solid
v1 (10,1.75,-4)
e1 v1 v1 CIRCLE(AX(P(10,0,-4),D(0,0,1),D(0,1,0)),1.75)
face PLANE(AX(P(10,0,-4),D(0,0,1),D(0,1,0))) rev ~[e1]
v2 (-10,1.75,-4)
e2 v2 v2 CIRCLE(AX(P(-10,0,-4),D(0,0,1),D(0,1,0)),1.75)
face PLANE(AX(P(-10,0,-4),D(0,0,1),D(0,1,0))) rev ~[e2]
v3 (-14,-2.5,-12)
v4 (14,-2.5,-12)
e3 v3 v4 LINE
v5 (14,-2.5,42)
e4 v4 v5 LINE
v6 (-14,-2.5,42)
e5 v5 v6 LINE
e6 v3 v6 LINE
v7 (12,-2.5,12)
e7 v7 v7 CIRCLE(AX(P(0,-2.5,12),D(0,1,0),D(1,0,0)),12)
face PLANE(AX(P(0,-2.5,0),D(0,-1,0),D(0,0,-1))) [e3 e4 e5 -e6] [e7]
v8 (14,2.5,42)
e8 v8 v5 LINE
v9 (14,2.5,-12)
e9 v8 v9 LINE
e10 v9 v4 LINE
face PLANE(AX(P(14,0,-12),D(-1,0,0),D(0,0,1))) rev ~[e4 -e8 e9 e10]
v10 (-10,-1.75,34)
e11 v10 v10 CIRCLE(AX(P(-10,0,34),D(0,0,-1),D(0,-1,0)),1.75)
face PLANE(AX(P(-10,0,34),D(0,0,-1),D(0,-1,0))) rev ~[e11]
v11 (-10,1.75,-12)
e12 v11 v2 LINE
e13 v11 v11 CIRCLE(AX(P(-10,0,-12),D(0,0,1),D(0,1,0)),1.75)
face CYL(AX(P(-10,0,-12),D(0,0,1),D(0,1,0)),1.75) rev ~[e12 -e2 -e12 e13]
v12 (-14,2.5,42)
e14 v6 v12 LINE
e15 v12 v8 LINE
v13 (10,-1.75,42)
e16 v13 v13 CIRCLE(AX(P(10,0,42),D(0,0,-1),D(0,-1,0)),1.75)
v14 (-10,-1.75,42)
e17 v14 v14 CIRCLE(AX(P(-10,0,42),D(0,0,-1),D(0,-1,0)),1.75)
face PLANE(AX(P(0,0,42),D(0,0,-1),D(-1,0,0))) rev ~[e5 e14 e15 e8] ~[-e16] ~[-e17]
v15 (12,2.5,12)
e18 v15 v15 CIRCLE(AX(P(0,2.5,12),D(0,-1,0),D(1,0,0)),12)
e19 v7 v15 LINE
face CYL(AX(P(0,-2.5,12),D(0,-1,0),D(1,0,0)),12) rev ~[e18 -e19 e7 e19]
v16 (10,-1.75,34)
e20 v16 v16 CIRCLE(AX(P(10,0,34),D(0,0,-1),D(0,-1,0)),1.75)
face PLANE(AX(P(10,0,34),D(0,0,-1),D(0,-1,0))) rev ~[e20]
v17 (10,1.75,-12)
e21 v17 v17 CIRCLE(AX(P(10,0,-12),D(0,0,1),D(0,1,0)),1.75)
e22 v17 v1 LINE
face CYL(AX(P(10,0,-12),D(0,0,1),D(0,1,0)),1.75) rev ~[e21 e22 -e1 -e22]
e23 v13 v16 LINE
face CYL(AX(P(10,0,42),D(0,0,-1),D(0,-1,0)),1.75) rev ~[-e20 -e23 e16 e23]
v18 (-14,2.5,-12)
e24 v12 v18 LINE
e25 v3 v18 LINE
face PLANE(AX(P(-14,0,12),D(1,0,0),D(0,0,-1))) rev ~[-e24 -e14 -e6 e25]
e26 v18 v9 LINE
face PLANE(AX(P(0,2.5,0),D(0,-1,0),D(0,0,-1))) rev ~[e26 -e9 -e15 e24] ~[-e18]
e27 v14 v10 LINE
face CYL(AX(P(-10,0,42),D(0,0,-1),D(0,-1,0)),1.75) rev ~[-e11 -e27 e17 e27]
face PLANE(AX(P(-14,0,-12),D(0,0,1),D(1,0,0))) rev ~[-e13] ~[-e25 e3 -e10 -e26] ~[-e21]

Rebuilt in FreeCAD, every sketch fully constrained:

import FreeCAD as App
import Part
import Sketcher
Q = App.Units.Quantity


def add_polygon(sketch, points):
    """Adds a closed chain of lines whose ends are joined by coincident constraints."""
    first, n = sketch.GeometryCount, len(points)
    for a, b in zip(points, points[1:] + points[:1]):
        sketch.addGeometry(Part.LineSegment(App.Vector(*a, 0), App.Vector(*b, 0)), False)
    for i in range(n):
        sketch.addConstraint(Sketcher.Constraint("Coincident", first + i, 2, first + (i + 1) % n, 1))

doc = App.newDocument("Part")
body = doc.addObject("PartDesign::Body", "Body")

# Sketch on XZ plane
sketch1 = doc.addObject("Sketcher::SketchObject", "Sketch")
body.addObject(sketch1)
sketch1.AttachmentSupport = (doc.XZ_Plane, [""])
sketch1.MapMode = "FlatFace"
add_polygon(sketch1, [(-14, 12), (-14, -12), (14, -12), (14, 12)])  # lines 0-3
sketch1.addConstraint([
    Sketcher.Constraint("Vertical", 0),
    Sketcher.Constraint("Horizontal", 1),
    Sketcher.Constraint("Vertical", 2),
    Sketcher.Constraint("Horizontal", 3),
    Sketcher.Constraint("Symmetric", 0, 2, 2, 2, -1, 1),
    Sketcher.Constraint("DistanceX", 0, 2, -1, 1, Q("14 mm")),
    Sketcher.Constraint("DistanceY", 0, 2, 0, 1, Q("24 mm")),
])
pad1 = doc.addObject("PartDesign::Pad", "Pad")
body.addObject(pad1)
pad1.Profile = sketch1
pad1.Length = 5
pad1.Midplane = True

# Sketch on XZ plane
sketch2 = doc.addObject("Sketcher::SketchObject", "Sketch001")
body.addObject(sketch2)
sketch2.AttachmentSupport = (doc.XZ_Plane, [""])
sketch2.MapMode = "FlatFace"
sketch2.AttachmentOffset = App.Placement(App.Vector(0, 0, 2.5), App.Rotation())
sketch2.addGeometry(Part.Circle(App.Vector(0, 12, 0), App.Vector(0, 0, 1), 12), False)
sketch2.addConstraint([
    Sketcher.Constraint("PointOnObject", 0, 3, -2),
    Sketcher.Constraint("Diameter", 0, Q("24 mm")),
    Sketcher.Constraint("DistanceY", -1, 1, 0, 3, Q("12 mm")),
])
pocket1 = doc.addObject("PartDesign::Pocket", "Pocket")
body.addObject(pocket1)
pocket1.Profile = sketch2
pocket1.Length = 221

# Sketch on XY plane
sketch3 = doc.addObject("Sketcher::SketchObject", "Sketch002")
body.addObject(sketch3)
sketch3.AttachmentSupport = (doc.XY_Plane, [""])
sketch3.MapMode = "FlatFace"
sketch3.AttachmentOffset = App.Placement(App.Vector(0, 0, -12), App.Rotation())
sketch3.addGeometry(Part.Circle(App.Vector(-10, 0, 0), App.Vector(0, 0, 1), 1.8), False)
sketch3.addConstraint([
    Sketcher.Constraint("PointOnObject", 0, 3, -1),
    Sketcher.Constraint("Diameter", 0, Q("3.5 mm")),
    Sketcher.Constraint("DistanceX", 0, 3, -1, 1, Q("10 mm")),
])
doc.recompute()
hole = doc.addObject("PartDesign::Hole", "Hole")
body.addObject(hole)
hole.Profile = sketch3
hole.ThreadType = "None"
hole.Diameter = 3.5
hole.DepthType = "Dimension"
hole.Depth = 8
hole.DrillPoint = "Flat"
hole.Reversed = True

# Sketch on XY plane
sketch4 = doc.addObject("Sketcher::SketchObject", "Sketch003")
body.addObject(sketch4)
sketch4.AttachmentSupport = (doc.XY_Plane, [""])
sketch4.MapMode = "FlatFace"
sketch4.AttachmentOffset = App.Placement(App.Vector(0, 0, -12), App.Rotation())
sketch4.addGeometry(Part.Circle(App.Vector(10, 0, 0), App.Vector(0, 0, 1), 1.8), False)
sketch4.addConstraint([
    Sketcher.Constraint("PointOnObject", 0, 3, -1),
    Sketcher.Constraint("Diameter", 0, Q("3.5 mm")),
    Sketcher.Constraint("DistanceX", -1, 1, 0, 3, Q("10 mm")),
])
doc.recompute()
hole2 = doc.addObject("PartDesign::Hole", "Hole001")
body.addObject(hole2)
hole2.Profile = sketch4
hole2.ThreadType = "None"
hole2.Diameter = 3.5
hole2.DepthType = "Dimension"
hole2.Depth = 8
hole2.DrillPoint = "Flat"
hole2.Reversed = True
doc.recompute()

datumplane = doc.addObject("PartDesign::Plane", "DatumPlane")
body.addObject(datumplane)
datumplane.AttachmentSupport = (doc.XY_Plane, [""])
datumplane.MapMode = "FlatFace"
datumplane.AttachmentOffset = App.Placement(App.Vector(0, 0, 12), App.Rotation())
mirrored = doc.addObject("PartDesign::Mirrored", "Mirrored")
body.addObject(mirrored)
mirrored.Originals = [pad1, pocket1]
mirrored.MirrorPlane = (datumplane, [""])
body.Tip = mirrored

# Sketch on XY plane
sketch5 = doc.addObject("Sketcher::SketchObject", "Sketch004")
body.addObject(sketch5)
sketch5.AttachmentSupport = (doc.XY_Plane, [""])
sketch5.MapMode = "FlatFace"
sketch5.AttachmentOffset = App.Placement(App.Vector(0, 0, 36), App.Rotation())
add_polygon(sketch5, [(14, 2), (-14, 2), (-14, -2), (14, -2)])  # lines 0-3
sketch5.addConstraint([
    Sketcher.Constraint("Horizontal", 0),
    Sketcher.Constraint("Vertical", 1),
    Sketcher.Constraint("Horizontal", 2),
    Sketcher.Constraint("Vertical", 3),
    Sketcher.Constraint("Symmetric", 0, 2, 2, 2, -1, 1),
    Sketcher.Constraint("DistanceX", 0, 2, 0, 1, Q("28 mm")),
    Sketcher.Constraint("DistanceY", 1, 2, 1, 1, Q("5 mm")),
])
pad2 = doc.addObject("PartDesign::Pad", "Pad001")
body.addObject(pad2)
pad2.Profile = sketch5
pad2.Length = 6

# Sketch on XY plane
sketch6 = doc.addObject("Sketcher::SketchObject", "Sketch005")
body.addObject(sketch6)
sketch6.AttachmentSupport = (doc.XY_Plane, [""])
sketch6.MapMode = "FlatFace"
sketch6.AttachmentOffset = App.Placement(App.Vector(0, 0, 42), App.Rotation())
sketch6.addGeometry(Part.Circle(App.Vector(-10, 0, 0), App.Vector(0, 0, 1), 1.8), False)
sketch6.addConstraint([
    Sketcher.Constraint("PointOnObject", 0, 3, -1),
    Sketcher.Constraint("Diameter", 0, Q("3.5 mm")),
    Sketcher.Constraint("DistanceX", 0, 3, -1, 1, Q("10 mm")),
])
doc.recompute()
hole3 = doc.addObject("PartDesign::Hole", "Hole002")
body.addObject(hole3)
hole3.Profile = sketch6
hole3.ThreadType = "None"
hole3.Diameter = 3.5
hole3.DepthType = "Dimension"
hole3.Depth = 8
hole3.DrillPoint = "Flat"

# Sketch on XY plane
sketch7 = doc.addObject("Sketcher::SketchObject", "Sketch006")
body.addObject(sketch7)
sketch7.AttachmentSupport = (doc.XY_Plane, [""])
sketch7.MapMode = "FlatFace"
sketch7.AttachmentOffset = App.Placement(App.Vector(0, 0, 42), App.Rotation())
sketch7.addGeometry(Part.Circle(App.Vector(10, 0, 0), App.Vector(0, 0, 1), 1.8), False)
sketch7.addConstraint([
    Sketcher.Constraint("PointOnObject", 0, 3, -1),
    Sketcher.Constraint("Diameter", 0, Q("3.5 mm")),
    Sketcher.Constraint("DistanceX", -1, 1, 0, 3, Q("10 mm")),
])
doc.recompute()
hole4 = doc.addObject("PartDesign::Hole", "Hole003")
body.addObject(hole4)
hole4.Profile = sketch7
hole4.ThreadType = "None"
hole4.Diameter = 3.5
hole4.DepthType = "Dimension"
hole4.Depth = 8
hole4.DrillPoint = "Flat"

doc.recompute()
